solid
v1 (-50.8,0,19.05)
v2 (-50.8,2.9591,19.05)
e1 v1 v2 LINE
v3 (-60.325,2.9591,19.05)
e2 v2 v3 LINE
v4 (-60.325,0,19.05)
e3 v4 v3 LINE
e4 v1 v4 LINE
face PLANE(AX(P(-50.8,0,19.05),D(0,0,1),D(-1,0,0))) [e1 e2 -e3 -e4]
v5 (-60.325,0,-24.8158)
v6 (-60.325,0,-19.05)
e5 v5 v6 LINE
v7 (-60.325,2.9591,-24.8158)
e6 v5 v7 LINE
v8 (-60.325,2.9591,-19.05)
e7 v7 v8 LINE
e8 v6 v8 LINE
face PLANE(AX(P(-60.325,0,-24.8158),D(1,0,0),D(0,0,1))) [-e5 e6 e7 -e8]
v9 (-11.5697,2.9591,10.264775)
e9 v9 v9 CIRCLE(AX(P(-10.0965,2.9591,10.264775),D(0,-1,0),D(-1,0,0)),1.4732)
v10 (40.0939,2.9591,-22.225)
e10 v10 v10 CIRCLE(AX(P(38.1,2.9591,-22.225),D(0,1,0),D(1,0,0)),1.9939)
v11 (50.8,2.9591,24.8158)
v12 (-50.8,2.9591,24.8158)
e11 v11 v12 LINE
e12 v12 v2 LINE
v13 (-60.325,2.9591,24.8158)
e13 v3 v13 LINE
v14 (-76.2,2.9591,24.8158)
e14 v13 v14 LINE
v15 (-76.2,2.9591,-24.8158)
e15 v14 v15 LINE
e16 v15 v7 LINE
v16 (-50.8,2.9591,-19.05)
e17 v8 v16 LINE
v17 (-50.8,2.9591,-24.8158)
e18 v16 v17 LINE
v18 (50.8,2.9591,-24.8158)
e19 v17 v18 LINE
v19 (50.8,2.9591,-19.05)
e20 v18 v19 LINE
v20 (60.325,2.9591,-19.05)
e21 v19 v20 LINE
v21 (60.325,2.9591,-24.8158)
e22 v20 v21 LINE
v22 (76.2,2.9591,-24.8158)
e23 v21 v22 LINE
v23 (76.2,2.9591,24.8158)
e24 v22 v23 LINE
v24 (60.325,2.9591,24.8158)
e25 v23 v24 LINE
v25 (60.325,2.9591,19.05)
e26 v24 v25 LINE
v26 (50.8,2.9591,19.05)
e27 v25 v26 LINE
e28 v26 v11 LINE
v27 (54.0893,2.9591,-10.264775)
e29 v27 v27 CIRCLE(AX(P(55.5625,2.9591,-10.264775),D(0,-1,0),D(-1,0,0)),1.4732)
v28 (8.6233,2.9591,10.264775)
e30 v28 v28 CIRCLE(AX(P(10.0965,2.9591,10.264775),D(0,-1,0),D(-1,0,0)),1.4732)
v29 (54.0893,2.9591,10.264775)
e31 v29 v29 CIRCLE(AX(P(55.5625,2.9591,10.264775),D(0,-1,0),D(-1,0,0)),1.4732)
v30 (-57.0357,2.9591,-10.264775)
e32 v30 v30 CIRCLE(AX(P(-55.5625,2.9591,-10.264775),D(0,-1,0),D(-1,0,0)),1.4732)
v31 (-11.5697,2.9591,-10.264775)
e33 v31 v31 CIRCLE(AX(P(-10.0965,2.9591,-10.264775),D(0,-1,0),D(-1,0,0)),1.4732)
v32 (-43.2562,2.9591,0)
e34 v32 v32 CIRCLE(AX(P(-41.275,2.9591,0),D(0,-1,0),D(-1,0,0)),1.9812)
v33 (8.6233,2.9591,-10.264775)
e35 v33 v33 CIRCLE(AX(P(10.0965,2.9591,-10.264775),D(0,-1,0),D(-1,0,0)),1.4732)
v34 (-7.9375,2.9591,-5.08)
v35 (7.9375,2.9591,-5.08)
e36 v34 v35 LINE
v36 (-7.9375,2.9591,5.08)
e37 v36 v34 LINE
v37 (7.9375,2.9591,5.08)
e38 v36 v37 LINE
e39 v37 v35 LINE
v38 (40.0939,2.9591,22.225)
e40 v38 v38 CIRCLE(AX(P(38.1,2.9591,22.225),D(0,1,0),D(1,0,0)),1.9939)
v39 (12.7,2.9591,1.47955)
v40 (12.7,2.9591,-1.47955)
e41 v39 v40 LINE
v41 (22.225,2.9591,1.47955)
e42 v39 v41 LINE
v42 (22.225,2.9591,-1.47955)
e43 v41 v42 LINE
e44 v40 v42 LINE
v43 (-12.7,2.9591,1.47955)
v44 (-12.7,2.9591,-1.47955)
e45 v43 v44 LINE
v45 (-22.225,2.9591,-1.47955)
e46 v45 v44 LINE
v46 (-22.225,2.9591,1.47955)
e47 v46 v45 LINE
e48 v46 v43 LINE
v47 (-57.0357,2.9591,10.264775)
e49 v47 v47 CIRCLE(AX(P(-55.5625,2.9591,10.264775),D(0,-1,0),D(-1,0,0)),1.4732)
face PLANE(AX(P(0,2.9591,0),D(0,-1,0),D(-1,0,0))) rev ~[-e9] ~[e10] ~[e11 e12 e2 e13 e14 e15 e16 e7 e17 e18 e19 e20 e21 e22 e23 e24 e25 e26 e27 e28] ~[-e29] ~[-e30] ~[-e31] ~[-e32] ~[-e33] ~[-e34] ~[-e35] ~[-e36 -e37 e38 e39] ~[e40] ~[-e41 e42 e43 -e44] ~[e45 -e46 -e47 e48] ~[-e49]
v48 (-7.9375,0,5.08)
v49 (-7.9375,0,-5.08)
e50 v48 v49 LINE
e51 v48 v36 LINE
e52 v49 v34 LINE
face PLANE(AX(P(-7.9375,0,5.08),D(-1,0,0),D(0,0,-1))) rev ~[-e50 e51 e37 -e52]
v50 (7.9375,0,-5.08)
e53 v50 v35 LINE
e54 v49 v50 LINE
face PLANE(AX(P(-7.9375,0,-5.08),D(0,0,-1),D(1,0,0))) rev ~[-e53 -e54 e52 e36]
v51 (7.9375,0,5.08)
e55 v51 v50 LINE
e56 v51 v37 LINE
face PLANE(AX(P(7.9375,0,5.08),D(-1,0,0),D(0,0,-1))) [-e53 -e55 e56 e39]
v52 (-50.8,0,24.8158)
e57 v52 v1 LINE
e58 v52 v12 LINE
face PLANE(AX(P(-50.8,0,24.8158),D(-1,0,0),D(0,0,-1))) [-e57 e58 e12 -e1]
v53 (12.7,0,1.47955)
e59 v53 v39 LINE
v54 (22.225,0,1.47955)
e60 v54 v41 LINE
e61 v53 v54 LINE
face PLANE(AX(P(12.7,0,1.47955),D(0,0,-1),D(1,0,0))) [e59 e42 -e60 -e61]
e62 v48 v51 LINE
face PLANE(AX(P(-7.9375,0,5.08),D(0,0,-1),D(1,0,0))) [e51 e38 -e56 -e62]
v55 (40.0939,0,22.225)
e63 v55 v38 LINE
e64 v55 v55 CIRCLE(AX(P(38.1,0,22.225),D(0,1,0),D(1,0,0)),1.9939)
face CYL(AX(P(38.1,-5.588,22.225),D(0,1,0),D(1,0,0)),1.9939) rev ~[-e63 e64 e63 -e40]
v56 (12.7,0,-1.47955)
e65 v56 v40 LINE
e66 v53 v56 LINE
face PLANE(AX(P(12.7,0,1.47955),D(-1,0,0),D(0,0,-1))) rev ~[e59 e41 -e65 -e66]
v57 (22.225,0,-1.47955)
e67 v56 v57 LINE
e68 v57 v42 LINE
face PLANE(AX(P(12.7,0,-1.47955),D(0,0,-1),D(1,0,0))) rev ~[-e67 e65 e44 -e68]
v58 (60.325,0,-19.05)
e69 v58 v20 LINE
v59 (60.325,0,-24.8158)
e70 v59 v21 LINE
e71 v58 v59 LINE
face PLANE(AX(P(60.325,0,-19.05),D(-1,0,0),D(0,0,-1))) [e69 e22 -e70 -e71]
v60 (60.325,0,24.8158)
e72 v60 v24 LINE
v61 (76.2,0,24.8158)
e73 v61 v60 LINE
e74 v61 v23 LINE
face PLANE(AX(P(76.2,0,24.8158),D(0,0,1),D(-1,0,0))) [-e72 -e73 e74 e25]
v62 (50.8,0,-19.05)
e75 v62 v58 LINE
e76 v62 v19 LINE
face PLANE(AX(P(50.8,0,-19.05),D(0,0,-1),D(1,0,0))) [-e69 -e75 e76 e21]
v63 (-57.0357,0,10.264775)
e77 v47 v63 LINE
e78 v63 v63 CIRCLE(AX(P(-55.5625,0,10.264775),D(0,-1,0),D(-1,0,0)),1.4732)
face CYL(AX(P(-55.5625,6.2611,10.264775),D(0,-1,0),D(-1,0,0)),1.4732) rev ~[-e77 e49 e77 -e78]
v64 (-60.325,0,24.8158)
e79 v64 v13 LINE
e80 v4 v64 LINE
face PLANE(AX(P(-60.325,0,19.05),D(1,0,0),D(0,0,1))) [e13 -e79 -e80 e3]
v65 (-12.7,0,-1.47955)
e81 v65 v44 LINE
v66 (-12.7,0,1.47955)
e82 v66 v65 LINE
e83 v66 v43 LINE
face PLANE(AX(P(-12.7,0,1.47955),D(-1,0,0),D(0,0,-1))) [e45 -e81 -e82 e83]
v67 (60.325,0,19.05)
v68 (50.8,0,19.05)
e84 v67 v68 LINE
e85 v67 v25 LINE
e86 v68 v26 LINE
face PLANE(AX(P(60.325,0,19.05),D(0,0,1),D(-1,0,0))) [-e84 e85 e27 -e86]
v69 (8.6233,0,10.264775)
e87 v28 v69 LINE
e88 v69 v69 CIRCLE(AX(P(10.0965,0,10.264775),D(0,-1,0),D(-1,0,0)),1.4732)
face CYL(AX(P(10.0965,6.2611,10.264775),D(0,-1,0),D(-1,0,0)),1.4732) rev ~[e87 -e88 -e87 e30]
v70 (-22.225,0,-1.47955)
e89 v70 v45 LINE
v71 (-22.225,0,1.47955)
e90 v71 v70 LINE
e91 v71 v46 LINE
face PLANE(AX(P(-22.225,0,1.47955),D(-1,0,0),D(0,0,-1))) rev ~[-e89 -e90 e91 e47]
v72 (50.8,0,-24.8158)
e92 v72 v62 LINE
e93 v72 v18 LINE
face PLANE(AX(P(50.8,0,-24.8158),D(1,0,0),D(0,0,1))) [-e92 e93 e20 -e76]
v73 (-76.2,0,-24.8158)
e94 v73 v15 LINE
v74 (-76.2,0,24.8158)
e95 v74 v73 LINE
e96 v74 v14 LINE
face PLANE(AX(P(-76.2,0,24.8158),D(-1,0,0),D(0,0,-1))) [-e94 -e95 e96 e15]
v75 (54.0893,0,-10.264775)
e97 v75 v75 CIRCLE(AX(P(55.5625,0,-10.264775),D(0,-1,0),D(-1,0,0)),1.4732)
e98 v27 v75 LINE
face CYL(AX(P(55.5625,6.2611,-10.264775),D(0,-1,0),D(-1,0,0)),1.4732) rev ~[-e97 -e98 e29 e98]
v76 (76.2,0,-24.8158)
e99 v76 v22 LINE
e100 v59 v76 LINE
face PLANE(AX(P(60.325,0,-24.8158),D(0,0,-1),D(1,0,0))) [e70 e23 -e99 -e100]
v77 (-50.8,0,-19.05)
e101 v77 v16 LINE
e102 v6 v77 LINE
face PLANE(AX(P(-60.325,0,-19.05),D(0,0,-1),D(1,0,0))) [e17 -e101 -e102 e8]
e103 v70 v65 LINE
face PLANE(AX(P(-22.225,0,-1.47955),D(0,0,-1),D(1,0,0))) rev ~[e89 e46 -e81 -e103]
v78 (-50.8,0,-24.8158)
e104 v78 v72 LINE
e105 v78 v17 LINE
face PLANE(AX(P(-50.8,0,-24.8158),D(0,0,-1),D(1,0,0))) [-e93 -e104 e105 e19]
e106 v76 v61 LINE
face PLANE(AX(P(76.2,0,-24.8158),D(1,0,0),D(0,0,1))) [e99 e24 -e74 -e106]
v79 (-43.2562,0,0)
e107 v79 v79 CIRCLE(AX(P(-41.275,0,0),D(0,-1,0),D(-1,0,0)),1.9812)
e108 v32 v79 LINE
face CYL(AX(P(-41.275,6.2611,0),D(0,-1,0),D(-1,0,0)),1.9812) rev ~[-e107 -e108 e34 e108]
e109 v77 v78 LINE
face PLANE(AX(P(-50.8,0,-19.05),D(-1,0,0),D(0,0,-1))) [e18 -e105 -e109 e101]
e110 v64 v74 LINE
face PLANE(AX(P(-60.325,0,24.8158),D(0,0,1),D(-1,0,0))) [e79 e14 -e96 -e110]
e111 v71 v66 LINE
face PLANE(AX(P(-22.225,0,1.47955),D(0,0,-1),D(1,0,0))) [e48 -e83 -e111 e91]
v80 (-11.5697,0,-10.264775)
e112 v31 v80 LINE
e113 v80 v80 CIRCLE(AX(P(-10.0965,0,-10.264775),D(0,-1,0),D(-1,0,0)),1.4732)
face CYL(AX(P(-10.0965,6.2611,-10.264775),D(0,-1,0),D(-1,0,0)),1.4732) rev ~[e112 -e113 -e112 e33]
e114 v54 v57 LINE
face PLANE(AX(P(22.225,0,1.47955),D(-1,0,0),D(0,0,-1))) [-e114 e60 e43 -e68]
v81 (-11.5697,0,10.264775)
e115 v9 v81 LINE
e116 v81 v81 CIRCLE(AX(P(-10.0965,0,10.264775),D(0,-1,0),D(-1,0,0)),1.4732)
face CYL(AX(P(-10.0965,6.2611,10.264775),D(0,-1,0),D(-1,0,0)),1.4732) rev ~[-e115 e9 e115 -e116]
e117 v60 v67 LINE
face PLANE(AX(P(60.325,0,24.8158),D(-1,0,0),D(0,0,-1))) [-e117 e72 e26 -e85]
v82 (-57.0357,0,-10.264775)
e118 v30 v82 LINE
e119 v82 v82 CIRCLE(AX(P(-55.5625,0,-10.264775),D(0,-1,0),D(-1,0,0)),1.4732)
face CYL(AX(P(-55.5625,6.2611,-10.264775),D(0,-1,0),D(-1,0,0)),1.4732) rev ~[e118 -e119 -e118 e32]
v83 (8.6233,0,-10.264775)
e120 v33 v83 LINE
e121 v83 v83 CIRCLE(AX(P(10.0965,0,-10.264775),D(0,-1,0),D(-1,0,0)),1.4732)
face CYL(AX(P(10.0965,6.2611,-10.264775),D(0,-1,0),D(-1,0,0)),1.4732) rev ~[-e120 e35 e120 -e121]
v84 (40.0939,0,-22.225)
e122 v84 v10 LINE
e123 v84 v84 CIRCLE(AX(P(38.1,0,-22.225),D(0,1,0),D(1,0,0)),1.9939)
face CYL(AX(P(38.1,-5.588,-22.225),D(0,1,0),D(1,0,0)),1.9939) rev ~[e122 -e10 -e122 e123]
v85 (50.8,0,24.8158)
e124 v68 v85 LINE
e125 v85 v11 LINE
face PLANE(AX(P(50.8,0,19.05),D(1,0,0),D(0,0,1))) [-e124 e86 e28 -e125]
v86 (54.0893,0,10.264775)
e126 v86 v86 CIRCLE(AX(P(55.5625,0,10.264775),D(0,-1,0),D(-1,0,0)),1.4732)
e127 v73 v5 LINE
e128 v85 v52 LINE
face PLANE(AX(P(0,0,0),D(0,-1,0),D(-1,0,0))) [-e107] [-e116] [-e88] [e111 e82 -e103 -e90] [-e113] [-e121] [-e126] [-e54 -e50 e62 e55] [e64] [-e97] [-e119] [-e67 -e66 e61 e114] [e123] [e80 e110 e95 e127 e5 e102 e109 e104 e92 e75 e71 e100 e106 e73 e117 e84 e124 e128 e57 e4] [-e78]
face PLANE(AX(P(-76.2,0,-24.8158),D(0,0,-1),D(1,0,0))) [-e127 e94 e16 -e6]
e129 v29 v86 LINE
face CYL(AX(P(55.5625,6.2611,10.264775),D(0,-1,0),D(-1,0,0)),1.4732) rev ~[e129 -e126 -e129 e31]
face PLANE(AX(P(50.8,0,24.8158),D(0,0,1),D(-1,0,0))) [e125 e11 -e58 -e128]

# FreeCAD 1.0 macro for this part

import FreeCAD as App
import Part
import Sketcher

V = App.Vector
Q = App.Units.Quantity


def add_polygon(sketch, points):
    """Adds a closed chain of lines whose ends are joined by coincident constraints."""
    first, n = sketch.GeometryCount, len(points)
    for a, b in zip(points, points[1:] + points[:1]):
        sketch.addGeometry(Part.LineSegment(App.Vector(*a, 0), App.Vector(*b, 0)), False)
    for i in range(n):
        sketch.addConstraint(Sketcher.Constraint("Coincident", first + i, 2, first + (i + 1) % n, 1))

doc = App.newDocument("Part")
body = doc.addObject("PartDesign::Body", "Body")

# Sketch on XZ plane
sketch1 = body.newObject("Sketcher::SketchObject", "Sketch")
sketch1.AttachmentSupport = (doc.getObject("XZ_Plane"), [""])
sketch1.MapMode = "FlatFace"
add_polygon(sketch1, [(-60.3, -24.8), (-76.2, -24.8), (-76.2, 24.8), (-60.3, 24.8), (-60.3, 19.1), (-50.8, 19.1), (-50.8, 24.8), (50.8, 24.8), (50.8, 19.1), (60.3, 19.1), (60.3, 24.8), (76.2, 24.8), (76.2, -24.8), (60.3, -24.8), (60.3, -19.1), (50.8, -19.1), (50.8, -24.8), (-50.8, -24.8), (-50.8, -19.1), (-60.3, -19.1)])  # lines 0-19
add_polygon(sketch1, [(12.7, 1.5), (12.7, -1.5), (22.2, -1.5), (22.2, 1.5)])  # lines 20-23
add_polygon(sketch1, [(-7.9, 5.1), (-7.9, -5.1), (7.9, -5.1), (7.9, 5.1)])  # lines 24-27
add_polygon(sketch1, [(-22.2, 1.5), (-22.2, -1.5), (-12.7, -1.5), (-12.7, 1.5)])  # lines 28-31
sketch1.addConstraint(Sketcher.Constraint("Horizontal", 0))
sketch1.addConstraint(Sketcher.Constraint("Vertical", 1))
sketch1.addConstraint(Sketcher.Constraint("Horizontal", 2))
sketch1.addConstraint(Sketcher.Constraint("Vertical", 3))
sketch1.addConstraint(Sketcher.Constraint("Horizontal", 4))
sketch1.addConstraint(Sketcher.Constraint("Vertical", 5))
sketch1.addConstraint(Sketcher.Constraint("Horizontal", 6))
sketch1.addConstraint(Sketcher.Constraint("Vertical", 7))
sketch1.addConstraint(Sketcher.Constraint("Horizontal", 8))
sketch1.addConstraint(Sketcher.Constraint("Vertical", 9))
sketch1.addConstraint(Sketcher.Constraint("Horizontal", 10))
sketch1.addConstraint(Sketcher.Constraint("Vertical", 11))
sketch1.addConstraint(Sketcher.Constraint("Horizontal", 12))
sketch1.addConstraint(Sketcher.Constraint("Vertical", 13))
sketch1.addConstraint(Sketcher.Constraint("Horizontal", 14))
sketch1.addConstraint(Sketcher.Constraint("Vertical", 15))
sketch1.addConstraint(Sketcher.Constraint("Horizontal", 16))
sketch1.addConstraint(Sketcher.Constraint("Vertical", 17))
sketch1.addConstraint(Sketcher.Constraint("Horizontal", 18))
sketch1.addConstraint(Sketcher.Constraint("Vertical", 19))
sketch1.addConstraint(Sketcher.Constraint("Vertical", 20))
sketch1.addConstraint(Sketcher.Constraint("Horizontal", 21))
sketch1.addConstraint(Sketcher.Constraint("Vertical", 22))
sketch1.addConstraint(Sketcher.Constraint("Horizontal", 23))
sketch1.addConstraint(Sketcher.Constraint("Vertical", 24))
sketch1.addConstraint(Sketcher.Constraint("Horizontal", 25))
sketch1.addConstraint(Sketcher.Constraint("Vertical", 26))
sketch1.addConstraint(Sketcher.Constraint("Horizontal", 27))
sketch1.addConstraint(Sketcher.Constraint("Vertical", 28))
sketch1.addConstraint(Sketcher.Constraint("Horizontal", 29))
sketch1.addConstraint(Sketcher.Constraint("Vertical", 30))
sketch1.addConstraint(Sketcher.Constraint("Horizontal", 31))
sketch1.addConstraint(Sketcher.Constraint("Symmetric", 0, 2, 10, 2, -1, 1))
sketch1.addConstraint(Sketcher.Constraint("Symmetric", 2, 2, 12, 2, -1, 1))
sketch1.addConstraint(Sketcher.Constraint("Symmetric", 4, 2, 14, 2, -1, 1))
sketch1.addConstraint(Sketcher.Constraint("Symmetric", 6, 2, 16, 2, -1, 1))
sketch1.addConstraint(Sketcher.Constraint("Symmetric", 8, 2, 18, 2, -1, 1))
sketch1.addConstraint(Sketcher.Constraint("Symmetric", 24, 2, 26, 2, -1, 1))
sketch1.addConstraint(Sketcher.Constraint("Symmetric", 22, 2, 28, 2, -1, 1))
sketch1.addConstraint(Sketcher.Constraint("Symmetric", 20, 2, 30, 2, -1, 1))
sketch1.addConstraint(Sketcher.Constraint("Symmetric", 4, 2, 7, 2, -2))
sketch1.addConstraint(Sketcher.Constraint("Symmetric", 2, 2, 9, 2, -2))
sketch1.addConstraint(Sketcher.Constraint("Horizontal", 2, 2, 5, 2))
sketch1.addConstraint(Sketcher.Constraint("Horizontal", 21, 2, 28, 2))
sketch1.addConstraint(Sketcher.Constraint("Equal", 18, 21))
sketch1.addConstraint(Sketcher.Constraint("Equal", 12, 25))
sketch1.addConstraint(Sketcher.Constraint("DistanceX", 6, 1, 6, 2, Q("4 in")))
sketch1.addConstraint(Sketcher.Constraint("DistanceY", 24, 2, 24, 1, Q("0.4 in")))
sketch1.addConstraint(Sketcher.Constraint("DistanceX", 0, 2, -1, 1, Q("3 in")))
sketch1.addConstraint(Sketcher.Constraint("DistanceX", -1, 1, 20, 2, Q("0.5 in")))
sketch1.addConstraint(Sketcher.Constraint("DistanceY", 13, 2, 8, 2, Q("1.5 in")))
sketch1.addConstraint(Sketcher.Constraint("DistanceX", 0, 2, 0, 1, Q("0.625 in")))
sketch1.addConstraint(Sketcher.Constraint("DistanceY", 1, 1, 1, 2, Q("1.954 in")))
sketch1.addConstraint(Sketcher.Constraint("DistanceY", 20, 2, 20, 1, Q("0.1165 in")))
pad1 = body.newObject("PartDesign::Pad", "Pad")
pad1.Profile = sketch1
pad1.Length = Q("0.1165 in")
pad1.Reversed = True

# Sketch on XZ plane
sketch2 = body.newObject("Sketcher::SketchObject", "Sketch001")
sketch2.AttachmentSupport = (doc.getObject("XZ_Plane"), [""])
sketch2.MapMode = "FlatFace"
sketch2.AttachmentOffset = App.Placement(V(0, 0, -0.1165 * 25.4), App.Rotation())
sketch2.addGeometry(Part.Circle(V(0, 0, 0), V(0, 0, 1), 1.5), False)
sketch2.addGeometry(Part.Circle(V(10.1, -10.3, 0), V(0, 0, 1), 1.5), False)
sketch2.addGeometry(Part.Circle(V(-10.1, 10.3, 0), V(0, 0, 1), 1.5), False)
sketch2.addGeometry(Part.Circle(V(-10.1, -10.3, 0), V(0, 0, 1), 1.5), False)
sketch2.addGeometry(Part.Circle(V(10.1, 10.3, 0), V(0, 0, 1), 1.5), False)
sketch2.addGeometry(Part.Circle(V(55.6, -10.3, 0), V(0, 0, 1), 1.5), False)
sketch2.addGeometry(Part.Circle(V(-55.6, 10.3, 0), V(0, 0, 1), 1.5), False)
sketch2.addGeometry(Part.Circle(V(55.6, 10.3, 0), V(0, 0, 1), 1.5), False)
sketch2.addGeometry(Part.Circle(V(-55.6, -10.3, 0), V(0, 0, 1), 1.5), False)
sketch2.addConstraint(Sketcher.Constraint("Coincident", 0, 3, -1, 1))
sketch2.addConstraint(Sketcher.Constraint("Equal", 0, 1))
sketch2.addConstraint(Sketcher.Constraint("Equal", 1, 2))
sketch2.addConstraint(Sketcher.Constraint("Equal", 2, 3))
sketch2.addConstraint(Sketcher.Constraint("Equal", 3, 4))
sketch2.addConstraint(Sketcher.Constraint("Equal", 4, 5))
sketch2.addConstraint(Sketcher.Constraint("Equal", 5, 6))
sketch2.addConstraint(Sketcher.Constraint("Equal", 6, 7))
sketch2.addConstraint(Sketcher.Constraint("Equal", 7, 8))
sketch2.addConstraint(Sketcher.Constraint("Symmetric", 1, 3, 2, 3, -1, 1))
sketch2.addConstraint(Sketcher.Constraint("Symmetric", 3, 3, 4, 3, -1, 1))
sketch2.addConstraint(Sketcher.Constraint("Symmetric", 5, 3, 6, 3, -1, 1))
sketch2.addConstraint(Sketcher.Constraint("Symmetric", 7, 3, 8, 3, -1, 1))
sketch2.addConstraint(Sketcher.Constraint("Symmetric", 1, 3, 3, 3, -2))
sketch2.addConstraint(Sketcher.Constraint("Symmetric", 6, 3, 7, 3, -2))
sketch2.addConstraint(Sketcher.Constraint("Horizontal", 3, 3, 5, 3))
sketch2.addConstraint(Sketcher.Constraint("Diameter", 0, Q("0.116 in")))
sketch2.addConstraint(Sketcher.Constraint("DistanceX", 1, 3, 5, 3, Q("1.79 in")))
sketch2.addConstraint(Sketcher.Constraint("DistanceX", -1, 1, 5, 3, Q("2.1875 in")))
sketch2.addConstraint(Sketcher.Constraint("DistanceY", 1, 3, 2, 3, 20.52955))
doc.recompute()
hole = body.newObject("PartDesign::Hole", "Hole")
hole.Profile = sketch2
hole.ThreadType = "None"
hole.Diameter = Q("0.116 in")
hole.DepthType = "Dimension"
hole.Depth = Q("0.13 in")
hole.DrillPoint = "Angled"
hole.DrillPointAngle = 118
hole.Reversed = True

# Sketch on XZ plane
sketch3 = body.newObject("Sketcher::SketchObject", "Sketch002")
sketch3.AttachmentSupport = (doc.getObject("XZ_Plane"), [""])
sketch3.MapMode = "FlatFace"
sketch3.AttachmentOffset = App.Placement(V(0, 0, -0.1165 * 25.4), App.Rotation())
sketch3.addGeometry(Part.Circle(V(-41.3, 0, 0), V(0, 0, 1), 2), False)
sketch3.addConstraint(Sketcher.Constraint("PointOnObject", 0, 3, -1))
sketch3.addConstraint(Sketcher.Constraint("Diameter", 0, Q("0.156 in")))
sketch3.addConstraint(Sketcher.Constraint("DistanceX", 0, 3, -1, 1, Q("1.625 in")))
doc.recompute()
hole2 = body.newObject("PartDesign::Hole", "Hole001")
hole2.Profile = sketch3
hole2.ThreadType = "None"
hole2.Diameter = Q("0.156 in")
hole2.DepthType = "Dimension"
hole2.Depth = Q("0.13 in")
hole2.DrillPoint = "Angled"
hole2.DrillPointAngle = 118
hole2.Reversed = True

# Sketch on XZ plane
sketch4 = body.newObject("Sketcher::SketchObject", "Sketch003")
sketch4.AttachmentSupport = (doc.getObject("XZ_Plane"), [""])
sketch4.MapMode = "FlatFace"
sketch4.addGeometry(Part.Circle(V(38.1, -22.2, 0), V(0, 0, 1), 2), False)
sketch4.addGeometry(Part.Circle(V(38.1, 22.2, 0), V(0, 0, 1), 2), False)
sketch4.addConstraint(Sketcher.Constraint("Equal", 0, 1))
sketch4.addConstraint(Sketcher.Constraint("Symmetric", 0, 3, 1, 3, -1))
sketch4.addConstraint(Sketcher.Constraint("Diameter", 0, Q("0.157 in")))
sketch4.addConstraint(Sketcher.Constraint("DistanceX", -1, 1, 0, 3, Q("1.5 in")))
sketch4.addConstraint(Sketcher.Constraint("DistanceY", 0, 3, 1, 3, Q("1.75 in")))
doc.recompute()
hole3 = body.newObject("PartDesign::Hole", "Hole002")
hole3.Profile = sketch4
hole3.ThreadType = "None"
hole3.Diameter = Q("0.157 in")
hole3.DepthType = "Dimension"
hole3.Depth = Q("0.22 in")
hole3.DrillPoint = "Angled"
hole3.DrillPointAngle = 118

doc.recompute()
